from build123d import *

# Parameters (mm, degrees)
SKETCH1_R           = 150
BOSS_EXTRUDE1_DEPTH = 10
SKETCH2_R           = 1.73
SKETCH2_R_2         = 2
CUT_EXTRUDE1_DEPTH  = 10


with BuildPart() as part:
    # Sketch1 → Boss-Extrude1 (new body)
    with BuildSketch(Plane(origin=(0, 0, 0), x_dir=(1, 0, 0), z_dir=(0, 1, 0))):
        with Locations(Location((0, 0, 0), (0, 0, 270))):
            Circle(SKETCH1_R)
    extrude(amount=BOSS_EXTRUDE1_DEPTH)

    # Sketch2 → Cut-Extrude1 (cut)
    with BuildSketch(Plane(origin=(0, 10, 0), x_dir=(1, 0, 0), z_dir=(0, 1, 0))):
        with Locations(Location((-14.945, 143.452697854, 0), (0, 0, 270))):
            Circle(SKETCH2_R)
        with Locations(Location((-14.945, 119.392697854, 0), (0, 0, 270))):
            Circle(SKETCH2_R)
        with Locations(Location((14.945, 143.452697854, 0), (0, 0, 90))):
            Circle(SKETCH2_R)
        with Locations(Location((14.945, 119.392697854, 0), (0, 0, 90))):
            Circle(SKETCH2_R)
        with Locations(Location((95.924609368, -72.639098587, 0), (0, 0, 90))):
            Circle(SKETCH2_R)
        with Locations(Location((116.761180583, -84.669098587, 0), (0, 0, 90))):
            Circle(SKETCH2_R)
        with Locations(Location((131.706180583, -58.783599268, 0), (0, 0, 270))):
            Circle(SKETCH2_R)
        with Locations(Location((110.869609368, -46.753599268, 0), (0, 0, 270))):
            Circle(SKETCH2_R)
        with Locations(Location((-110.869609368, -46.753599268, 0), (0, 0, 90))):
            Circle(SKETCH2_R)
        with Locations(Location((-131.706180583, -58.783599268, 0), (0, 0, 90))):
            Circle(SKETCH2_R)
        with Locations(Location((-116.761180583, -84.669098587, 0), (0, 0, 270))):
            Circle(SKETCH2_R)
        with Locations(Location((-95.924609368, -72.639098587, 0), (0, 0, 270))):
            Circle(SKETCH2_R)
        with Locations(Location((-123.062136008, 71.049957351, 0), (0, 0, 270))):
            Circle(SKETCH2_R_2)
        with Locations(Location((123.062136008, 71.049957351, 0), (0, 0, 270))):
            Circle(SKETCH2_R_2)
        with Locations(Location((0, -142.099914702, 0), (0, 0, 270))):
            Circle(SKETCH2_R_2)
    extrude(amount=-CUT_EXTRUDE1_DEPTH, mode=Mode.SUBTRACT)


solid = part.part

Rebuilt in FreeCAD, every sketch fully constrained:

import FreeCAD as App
import Part
import Sketcher
Q = App.Units.Quantity

doc = App.newDocument("Part")
body = doc.addObject("PartDesign::Body", "Body")

sketch1 = doc.addObject("Sketcher::SketchObject", "Sketch")
body.addObject(sketch1)
sketch1.AttachmentSupport = (doc.XZ_Plane, [""])
sketch1.MapMode = "FlatFace"
sketch1.addGeometry(Part.Circle(App.Vector(0, 0, 0), App.Vector(0, 0, 1), 150), False)
sketch1.addConstraint([
    Sketcher.Constraint("Coincident", 0, 3, -1, 1),
    Sketcher.Constraint("Diameter", 0, Q("300 mm")),
])
pad1 = doc.addObject("PartDesign::Pad", "Pad")
body.addObject(pad1)
pad1.Profile = sketch1
pad1.Length = 10
pad1.Reversed = True

sketch2 = doc.addObject("Sketcher::SketchObject", "Sketch001")
body.addObject(sketch2)
sketch2.AttachmentSupport = (doc.XZ_Plane, [""])
sketch2.MapMode = "FlatFace"
sketch2.AttachmentOffset = App.Placement(App.Vector(0, 0, -10), App.Rotation())
sketch2.addGeometry([
    Part.Circle(App.Vector(-14.9, -143.5, 0), App.Vector(0, 0, 1), 1.7),
    Part.Circle(App.Vector(-14.9, -119.4, 0), App.Vector(0, 0, 1), 1.7),
    Part.Circle(App.Vector(14.9, -143.5, 0), App.Vector(0, 0, 1), 1.7),
    Part.Circle(App.Vector(14.9, -119.4, 0), App.Vector(0, 0, 1), 1.7),
    Part.Circle(App.Vector(95.9, 72.6, 0), App.Vector(0, 0, 1), 1.7),
    Part.Circle(App.Vector(116.8, 84.7, 0), App.Vector(0, 0, 1), 1.7),
    Part.Circle(App.Vector(131.7, 58.8, 0), App.Vector(0, 0, 1), 1.7),
    Part.Circle(App.Vector(110.9, 46.8, 0), App.Vector(0, 0, 1), 1.7),
    Part.Circle(App.Vector(-110.9, 46.8, 0), App.Vector(0, 0, 1), 1.7),
    Part.Circle(App.Vector(-131.7, 58.8, 0), App.Vector(0, 0, 1), 1.7),
    Part.Circle(App.Vector(-116.8, 84.7, 0), App.Vector(0, 0, 1), 1.7),
    Part.Circle(App.Vector(-95.9, 72.6, 0), App.Vector(0, 0, 1), 1.7),
    Part.Circle(App.Vector(-123.1, -71, 0), App.Vector(0, 0, 1), 2),
    Part.Circle(App.Vector(123.1, -71, 0), App.Vector(0, 0, 1), 2),
    Part.Circle(App.Vector(0, 142.1, 0), App.Vector(0, 0, 1), 2),
], False)
sketch2.addConstraint([
    Sketcher.Constraint("Equal", 0, 1),
    Sketcher.Constraint("Equal", 1, 2),
    Sketcher.Constraint("Equal", 2, 3),
    Sketcher.Constraint("Equal", 3, 4),
    Sketcher.Constraint("Equal", 4, 5),
    Sketcher.Constraint("Equal", 5, 6),
    Sketcher.Constraint("Equal", 6, 7),
    Sketcher.Constraint("Equal", 7, 8),
    Sketcher.Constraint("Equal", 8, 9),
    Sketcher.Constraint("Equal", 9, 10),
    Sketcher.Constraint("Equal", 10, 11),
    Sketcher.Constraint("Equal", 12, 13),
    Sketcher.Constraint("Equal", 13, 14),
    Sketcher.Constraint("Symmetric", 0, 3, 2, 3, -2),
    Sketcher.Constraint("Symmetric", 1, 3, 3, 3, -2),
    Sketcher.Constraint("Symmetric", 7, 3, 8, 3, -2),
    Sketcher.Constraint("Symmetric", 6, 3, 9, 3, -2),
    Sketcher.Constraint("Symmetric", 5, 3, 10, 3, -2),
    Sketcher.Constraint("Symmetric", 4, 3, 11, 3, -2),
    Sketcher.Constraint("Symmetric", 12, 3, 13, 3, -2),
    Sketcher.Constraint("PointOnObject", 14, 3, -2),
    Sketcher.Constraint("Vertical", 0, 3, 1, 3),
    Sketcher.Constraint("Diameter", 12, Q("4 mm")),
    Sketcher.Constraint("Diameter", 0, Q("3.46 mm")),
    Sketcher.Constraint("DistanceY", 0, 3, 1, 3, Q("24.06 mm")),
    Sketcher.Constraint("DistanceX", 0, 3, 2, 3, Q("29.89 mm")),
    Sketcher.Constraint("DistanceY", 4, 3, 5, 3, Q("12.03 mm")),
    Sketcher.Constraint("DistanceY", 7, 3, 6, 3, Q("12.03 mm")),
    Sketcher.Constraint("DistanceX", 5, 3, 6, 3, Q("14.945 mm")),
    Sketcher.Constraint("DistanceX", 4, 3, 7, 3, Q("14.945 mm")),
    Sketcher.Constraint("DistanceY", -1, 1, 4, 3, Q("72.639099 mm")),
    Sketcher.Constraint("DistanceY", -1, 1, 6, 3, Q("58.783599 mm")),
    Sketcher.Constraint("DistanceX", -1, 1, 4, 3, Q("95.924609 mm")),
    Sketcher.Constraint("DistanceX", -1, 1, 5, 3, Q("116.761181 mm")),
    Sketcher.Constraint("DistanceY", 1, 3, 12, 3, Q("48.342741 mm")),
    Sketcher.Constraint("DistanceY", 0, 3, -1, 1, Q("143.452698 mm")),
    Sketcher.Constraint("DistanceX", 12, 3, -1, 1, Q("123.062136 mm")),
    Sketcher.Constraint("DistanceY", -1, 1, 14, 3, Q("142.099915 mm")),
])
pocket1 = doc.addObject("PartDesign::Pocket", "Pocket")
body.addObject(pocket1)
pocket1.Profile = sketch2
pocket1.Length = 10
pocket1.Reversed = True

doc.recompute()
